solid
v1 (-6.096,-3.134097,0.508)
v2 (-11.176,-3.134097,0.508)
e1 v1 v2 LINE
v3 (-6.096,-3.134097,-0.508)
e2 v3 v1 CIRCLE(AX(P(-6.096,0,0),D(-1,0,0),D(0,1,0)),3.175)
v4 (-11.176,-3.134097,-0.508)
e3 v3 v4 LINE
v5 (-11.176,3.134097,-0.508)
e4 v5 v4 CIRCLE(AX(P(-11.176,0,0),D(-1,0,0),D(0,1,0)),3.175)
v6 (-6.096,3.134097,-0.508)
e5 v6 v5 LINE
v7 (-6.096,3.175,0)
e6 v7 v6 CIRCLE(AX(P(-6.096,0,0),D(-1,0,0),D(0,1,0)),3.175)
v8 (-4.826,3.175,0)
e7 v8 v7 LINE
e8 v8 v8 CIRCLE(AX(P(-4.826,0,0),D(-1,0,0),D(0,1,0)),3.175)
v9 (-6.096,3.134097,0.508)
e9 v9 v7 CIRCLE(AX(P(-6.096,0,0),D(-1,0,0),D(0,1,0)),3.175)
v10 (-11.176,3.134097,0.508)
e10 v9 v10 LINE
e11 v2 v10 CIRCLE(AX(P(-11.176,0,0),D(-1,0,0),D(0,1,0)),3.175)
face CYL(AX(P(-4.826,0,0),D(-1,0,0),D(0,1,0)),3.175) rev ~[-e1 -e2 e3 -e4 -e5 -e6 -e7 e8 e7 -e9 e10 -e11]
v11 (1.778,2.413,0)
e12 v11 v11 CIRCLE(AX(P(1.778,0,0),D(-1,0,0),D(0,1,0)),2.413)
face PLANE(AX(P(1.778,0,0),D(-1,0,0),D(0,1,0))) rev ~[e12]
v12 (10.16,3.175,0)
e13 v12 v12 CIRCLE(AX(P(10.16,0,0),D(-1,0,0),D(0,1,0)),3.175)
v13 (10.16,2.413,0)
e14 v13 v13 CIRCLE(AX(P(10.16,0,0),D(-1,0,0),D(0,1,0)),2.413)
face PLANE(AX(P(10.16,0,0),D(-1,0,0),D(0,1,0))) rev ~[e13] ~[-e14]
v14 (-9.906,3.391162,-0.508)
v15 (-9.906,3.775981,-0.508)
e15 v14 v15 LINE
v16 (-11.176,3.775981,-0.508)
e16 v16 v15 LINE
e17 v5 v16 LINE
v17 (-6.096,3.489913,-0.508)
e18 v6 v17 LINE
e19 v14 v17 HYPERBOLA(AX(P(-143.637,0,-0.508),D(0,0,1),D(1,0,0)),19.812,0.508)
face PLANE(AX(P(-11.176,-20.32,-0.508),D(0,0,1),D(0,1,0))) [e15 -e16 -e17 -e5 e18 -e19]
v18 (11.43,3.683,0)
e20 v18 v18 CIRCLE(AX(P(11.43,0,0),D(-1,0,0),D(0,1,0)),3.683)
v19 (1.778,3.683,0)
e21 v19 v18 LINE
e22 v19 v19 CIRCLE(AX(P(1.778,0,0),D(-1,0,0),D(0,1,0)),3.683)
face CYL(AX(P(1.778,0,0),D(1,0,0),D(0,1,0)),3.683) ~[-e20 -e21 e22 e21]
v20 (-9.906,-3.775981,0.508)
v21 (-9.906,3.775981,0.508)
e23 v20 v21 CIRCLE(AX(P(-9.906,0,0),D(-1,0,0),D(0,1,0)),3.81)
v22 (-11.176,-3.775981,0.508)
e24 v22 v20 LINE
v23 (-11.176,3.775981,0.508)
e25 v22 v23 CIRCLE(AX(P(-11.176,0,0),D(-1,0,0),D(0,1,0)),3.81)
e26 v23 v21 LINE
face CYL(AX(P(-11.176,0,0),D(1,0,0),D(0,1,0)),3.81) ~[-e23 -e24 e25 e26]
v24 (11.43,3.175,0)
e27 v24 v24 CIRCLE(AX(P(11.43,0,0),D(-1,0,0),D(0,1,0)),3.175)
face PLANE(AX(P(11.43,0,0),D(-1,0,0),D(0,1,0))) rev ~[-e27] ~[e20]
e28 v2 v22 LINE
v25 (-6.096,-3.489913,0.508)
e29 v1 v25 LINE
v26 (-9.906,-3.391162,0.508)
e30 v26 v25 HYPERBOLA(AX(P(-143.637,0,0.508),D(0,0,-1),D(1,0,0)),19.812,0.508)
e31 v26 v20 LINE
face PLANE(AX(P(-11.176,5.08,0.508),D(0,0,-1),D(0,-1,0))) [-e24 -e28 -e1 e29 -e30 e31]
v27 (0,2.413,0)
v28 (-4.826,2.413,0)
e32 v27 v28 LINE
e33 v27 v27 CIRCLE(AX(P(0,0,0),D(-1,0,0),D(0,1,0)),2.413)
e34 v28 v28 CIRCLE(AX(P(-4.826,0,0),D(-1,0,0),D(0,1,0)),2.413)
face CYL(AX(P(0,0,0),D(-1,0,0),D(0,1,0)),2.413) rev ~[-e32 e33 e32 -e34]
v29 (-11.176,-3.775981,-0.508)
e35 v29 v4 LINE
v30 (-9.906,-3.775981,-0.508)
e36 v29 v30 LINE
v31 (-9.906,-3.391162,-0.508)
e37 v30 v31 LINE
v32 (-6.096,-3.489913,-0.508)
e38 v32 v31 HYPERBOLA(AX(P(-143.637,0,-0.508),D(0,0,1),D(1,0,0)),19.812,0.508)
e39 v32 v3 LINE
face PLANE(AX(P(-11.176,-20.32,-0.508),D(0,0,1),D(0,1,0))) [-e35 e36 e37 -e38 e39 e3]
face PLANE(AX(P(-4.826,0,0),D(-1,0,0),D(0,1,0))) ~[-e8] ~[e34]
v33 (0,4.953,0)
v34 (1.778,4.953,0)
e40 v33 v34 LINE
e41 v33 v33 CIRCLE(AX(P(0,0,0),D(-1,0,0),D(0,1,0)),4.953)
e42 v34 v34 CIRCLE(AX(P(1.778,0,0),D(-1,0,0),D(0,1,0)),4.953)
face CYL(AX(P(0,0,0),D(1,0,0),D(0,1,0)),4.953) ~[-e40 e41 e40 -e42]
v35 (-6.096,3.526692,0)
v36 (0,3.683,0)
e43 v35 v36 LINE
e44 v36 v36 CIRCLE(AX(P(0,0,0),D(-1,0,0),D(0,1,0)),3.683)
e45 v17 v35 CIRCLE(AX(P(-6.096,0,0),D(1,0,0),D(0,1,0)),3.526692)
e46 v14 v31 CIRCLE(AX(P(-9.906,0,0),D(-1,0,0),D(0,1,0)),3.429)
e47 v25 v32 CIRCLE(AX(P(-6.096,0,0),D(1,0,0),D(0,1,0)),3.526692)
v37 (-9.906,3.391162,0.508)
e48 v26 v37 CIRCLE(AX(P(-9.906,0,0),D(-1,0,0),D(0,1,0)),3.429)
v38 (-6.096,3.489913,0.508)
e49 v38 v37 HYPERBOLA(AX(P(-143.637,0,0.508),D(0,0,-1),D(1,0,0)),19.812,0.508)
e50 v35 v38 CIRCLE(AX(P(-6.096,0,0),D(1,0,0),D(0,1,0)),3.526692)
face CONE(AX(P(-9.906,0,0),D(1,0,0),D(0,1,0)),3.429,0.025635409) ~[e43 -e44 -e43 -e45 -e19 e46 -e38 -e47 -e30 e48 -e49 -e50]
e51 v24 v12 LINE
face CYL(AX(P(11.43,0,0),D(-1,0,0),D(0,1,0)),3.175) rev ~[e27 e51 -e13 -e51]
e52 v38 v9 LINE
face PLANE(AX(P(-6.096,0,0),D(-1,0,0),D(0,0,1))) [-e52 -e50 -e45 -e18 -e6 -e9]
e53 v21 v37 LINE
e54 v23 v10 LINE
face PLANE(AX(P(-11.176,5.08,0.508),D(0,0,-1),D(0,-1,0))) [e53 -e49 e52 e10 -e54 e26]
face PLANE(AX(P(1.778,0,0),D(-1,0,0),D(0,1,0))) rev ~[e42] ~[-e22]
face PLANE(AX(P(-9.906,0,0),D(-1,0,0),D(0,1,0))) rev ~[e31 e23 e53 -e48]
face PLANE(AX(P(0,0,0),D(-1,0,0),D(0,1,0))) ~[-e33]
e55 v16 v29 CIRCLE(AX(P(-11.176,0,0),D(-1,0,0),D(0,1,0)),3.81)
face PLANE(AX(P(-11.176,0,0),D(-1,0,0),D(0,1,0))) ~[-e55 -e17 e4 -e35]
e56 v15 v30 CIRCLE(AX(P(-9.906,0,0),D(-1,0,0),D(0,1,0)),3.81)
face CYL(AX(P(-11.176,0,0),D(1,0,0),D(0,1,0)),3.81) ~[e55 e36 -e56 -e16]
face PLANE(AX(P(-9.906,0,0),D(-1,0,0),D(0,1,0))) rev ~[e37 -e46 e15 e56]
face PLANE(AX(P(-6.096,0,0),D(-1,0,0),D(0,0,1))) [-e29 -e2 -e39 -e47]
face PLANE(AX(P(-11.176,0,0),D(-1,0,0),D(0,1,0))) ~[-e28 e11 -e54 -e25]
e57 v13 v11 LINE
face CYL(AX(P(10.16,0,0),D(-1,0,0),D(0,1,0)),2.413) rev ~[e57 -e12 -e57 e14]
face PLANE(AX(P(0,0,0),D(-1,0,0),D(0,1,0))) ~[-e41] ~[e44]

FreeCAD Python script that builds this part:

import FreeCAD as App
import Part
import Sketcher
from FreeCAD import Vector
Q = App.Units.Quantity

doc = App.newDocument("Part")
params = doc.addObject("Spreadsheet::Sheet", "Params")
for row, (alias, value) in enumerate([
    ("sketch1_width", "0.07 in"),
    ("sketch1_width2", "0.33 in"),
    ("sketch1_width3", "0.05 in"),
    ("sketch1_width4", "0.25 in"),
    ("sketch1_width5", "0.19 in"),
    ("revolution_angle", "360 deg"),
    ("sketch2_width", "1 in"),
    ("sketch2_height", "0.04 in"),
    ("pocket1_length", "0.2 in"),
], start=1):
    params.set(f"A{row}", alias)
    params.set(f"B{row}", "=" + value)
    params.setAlias(f"B{row}", alias)

body = doc.addObject("PartDesign::Body", "Body")

sketch1 = body.newObject("Sketcher::SketchObject", "Sketch")
sketch1.AttachmentSupport = (doc.getObject("XY_Plane"), [""])
sketch1.MapMode = "FlatFace"
sketch1.addGeometry([
    Part.LineSegment(Vector(0, 2.413, 0), Vector(0, 0, 0)),
    Part.LineSegment(Vector(0, 0, 0), Vector(1.778, 0, 0)),
    Part.LineSegment(Vector(1.778, 0, 0), Vector(1.778, 2.413, 0)),
    Part.LineSegment(Vector(1.778, 2.413, 0), Vector(10.16, 2.413, 0)),
    Part.LineSegment(Vector(10.16, 2.413, 0), Vector(10.16, 3.175, 0)),
    Part.LineSegment(Vector(10.16, 3.175, 0), Vector(11.43, 3.175, 0)),
    Part.LineSegment(Vector(11.43, 3.175, 0), Vector(11.43, 3.683, 0)),
    Part.LineSegment(Vector(11.43, 3.683, 0), Vector(1.778, 3.683, 0)),
    Part.LineSegment(Vector(1.778, 3.683, 0), Vector(1.778, 4.953, 0)),
    Part.LineSegment(Vector(1.778, 4.953, 0), Vector(0, 4.953, 0)),
    Part.LineSegment(Vector(0, 4.953, 0), Vector(0, 3.683, 0)),
    Part.LineSegment(Vector(0, 3.683, 0), Vector(-9.906, 3.429, 0)),
    Part.LineSegment(Vector(-9.906, 3.429, 0), Vector(-9.906, 3.81, 0)),
    Part.LineSegment(Vector(-9.906, 3.81, 0), Vector(-11.176, 3.81, 0)),
    Part.LineSegment(Vector(-11.176, 3.81, 0), Vector(-11.176, 3.175, 0)),
    Part.LineSegment(Vector(-11.176, 3.175, 0), Vector(-4.826, 3.175, 0)),
    Part.LineSegment(Vector(-4.826, 3.175, 0), Vector(-4.826, 2.413, 0)),
    Part.LineSegment(Vector(-4.826, 2.413, 0), Vector(0, 2.413, 0)),
], False)
sketch1.addConstraint([
    Sketcher.Constraint("Coincident", 0, 2, 1, 1),
    Sketcher.Constraint("Coincident", 1, 2, 2, 1),
    Sketcher.Constraint("Coincident", 2, 2, 3, 1),
    Sketcher.Constraint("Coincident", 3, 2, 4, 1),
    Sketcher.Constraint("Coincident", 4, 2, 5, 1),
    Sketcher.Constraint("Coincident", 5, 2, 6, 1),
    Sketcher.Constraint("Coincident", 6, 2, 7, 1),
    Sketcher.Constraint("Coincident", 7, 2, 8, 1),
    Sketcher.Constraint("Coincident", 8, 2, 9, 1),
    Sketcher.Constraint("Coincident", 9, 2, 10, 1),
    Sketcher.Constraint("Coincident", 10, 2, 11, 1),
    Sketcher.Constraint("Coincident", 11, 2, 12, 1),
    Sketcher.Constraint("Coincident", 12, 2, 13, 1),
    Sketcher.Constraint("Coincident", 13, 2, 14, 1),
    Sketcher.Constraint("Coincident", 14, 2, 15, 1),
    Sketcher.Constraint("Coincident", 15, 2, 16, 1),
    Sketcher.Constraint("Coincident", 16, 2, 17, 1),
    Sketcher.Constraint("Coincident", 17, 2, 0, 1),
    Sketcher.Constraint("Vertical", 0),
    Sketcher.Constraint("Horizontal", 1),
    Sketcher.Constraint("Vertical", 2),
    Sketcher.Constraint("Horizontal", 3),
    Sketcher.Constraint("Vertical", 4),
    Sketcher.Constraint("Horizontal", 5),
    Sketcher.Constraint("Vertical", 6),
    Sketcher.Constraint("Horizontal", 7),
    Sketcher.Constraint("Vertical", 8),
    Sketcher.Constraint("Horizontal", 9),
    Sketcher.Constraint("Vertical", 10),
    Sketcher.Constraint("Vertical", 12),
    Sketcher.Constraint("Horizontal", 13),
    Sketcher.Constraint("Vertical", 14),
    Sketcher.Constraint("Horizontal", 15),
    Sketcher.Constraint("Vertical", 16),
    Sketcher.Constraint("Horizontal", 17),
    Sketcher.Constraint("Coincident", 0, 2, -1, 1),
    Sketcher.Constraint("PointOnObject", 9, 2, -2),
    Sketcher.Constraint("Horizontal", 7, 2, 10, 2),
    Sketcher.Constraint("Horizontal", 5, 2, 14, 2),
    Sketcher.Constraint("Horizontal", 3, 2, 16, 2),
    Sketcher.Constraint("Vertical", 2, 2, 7, 2),
    Sketcher.Constraint("Equal", 5, 13),
    Sketcher.Constraint("Equal", 13, 8),
    Sketcher.Constraint("DistanceX", 1, 1, 1, 2, Q("0.07 in")),
    Sketcher.Constraint("DistanceX", 3, 1, 3, 2, Q("0.33 in")),
    Sketcher.Constraint("DistanceX", 5, 1, 5, 2, Q("0.05 in")),
    Sketcher.Constraint("DistanceX", 15, 1, 15, 2, Q("0.25 in")),
    Sketcher.Constraint("DistanceX", 17, 1, 17, 2, Q("0.19 in")),
    Sketcher.Constraint("DistanceY", 4, 1, 4, 2, Q("0.03 in")),
    Sketcher.Constraint("DistanceY", 6, 1, 6, 2, Q("0.02 in")),
    Sketcher.Constraint("DistanceY", 0, 2, 0, 1, Q("0.095 in")),
    Sketcher.Constraint("DistanceY", 14, 2, 14, 1, Q("0.025 in")),
    Sketcher.Constraint("DistanceY", 11, 2, 10, 2, Q("0.01 in")),
])
sketch1.setExpression("Constraints[43]", "Params.sketch1_width")
sketch1.setExpression("Constraints[44]", "Params.sketch1_width2")
sketch1.setExpression("Constraints[45]", "Params.sketch1_width3")
sketch1.setExpression("Constraints[46]", "Params.sketch1_width4")
sketch1.setExpression("Constraints[47]", "Params.sketch1_width5")
revolution = body.newObject("PartDesign::Revolution", "Revolution")
revolution.Profile = sketch1
revolution.ReferenceAxis = (sketch1, ["H_Axis"])
revolution.setExpression("Angle", "Params.revolution_angle")

sketch2 = body.newObject("Sketcher::SketchObject", "Sketch001")
sketch2.AttachmentSupport = (doc.getObject("YZ_Plane"), [""])
sketch2.MapMode = "FlatFace"
sketch2.AttachmentOffset = App.Placement(Vector(0, 0, -0.44 * 25.4), App.Rotation())
sketch2.addGeometry([
    Part.LineSegment(Vector(5.08, 0.508, 0), Vector(5.08, -0.508, 0)),
    Part.LineSegment(Vector(5.08, -0.508, 0), Vector(-20.32, -0.508, 0)),
    Part.LineSegment(Vector(-20.32, -0.508, 0), Vector(-20.32, 0.508, 0)),
    Part.LineSegment(Vector(-20.32, 0.508, 0), Vector(5.08, 0.508, 0)),
], False)
sketch2.addConstraint([
    Sketcher.Constraint("Coincident", 0, 2, 1, 1),
    Sketcher.Constraint("Coincident", 1, 2, 2, 1),
    Sketcher.Constraint("Coincident", 2, 2, 3, 1),
    Sketcher.Constraint("Coincident", 3, 2, 0, 1),
    Sketcher.Constraint("Vertical", 0),
    Sketcher.Constraint("Horizontal", 1),
    Sketcher.Constraint("Vertical", 2),
    Sketcher.Constraint("Horizontal", 3),
    Sketcher.Constraint("DistanceX", 1, 2, 1, 1, Q("1 in")),
    Sketcher.Constraint("DistanceY", 0, 2, 0, 1, Q("0.04 in")),
    Sketcher.Constraint("DistanceY", 0, 2, -1, 1, Q("0.02 in")),
    Sketcher.Constraint("DistanceX", -1, 1, 0, 2, Q("0.2 in")),
])
sketch2.setExpression("Constraints[8]", "Params.sketch2_width")
sketch2.setExpression("Constraints[9]", "Params.sketch2_height")
pocket1 = body.newObject("PartDesign::Pocket", "Pocket")
pocket1.Profile = sketch2
pocket1.setExpression("Length", "Params.pocket1_length")
pocket1.Reversed = True

doc.recompute()
